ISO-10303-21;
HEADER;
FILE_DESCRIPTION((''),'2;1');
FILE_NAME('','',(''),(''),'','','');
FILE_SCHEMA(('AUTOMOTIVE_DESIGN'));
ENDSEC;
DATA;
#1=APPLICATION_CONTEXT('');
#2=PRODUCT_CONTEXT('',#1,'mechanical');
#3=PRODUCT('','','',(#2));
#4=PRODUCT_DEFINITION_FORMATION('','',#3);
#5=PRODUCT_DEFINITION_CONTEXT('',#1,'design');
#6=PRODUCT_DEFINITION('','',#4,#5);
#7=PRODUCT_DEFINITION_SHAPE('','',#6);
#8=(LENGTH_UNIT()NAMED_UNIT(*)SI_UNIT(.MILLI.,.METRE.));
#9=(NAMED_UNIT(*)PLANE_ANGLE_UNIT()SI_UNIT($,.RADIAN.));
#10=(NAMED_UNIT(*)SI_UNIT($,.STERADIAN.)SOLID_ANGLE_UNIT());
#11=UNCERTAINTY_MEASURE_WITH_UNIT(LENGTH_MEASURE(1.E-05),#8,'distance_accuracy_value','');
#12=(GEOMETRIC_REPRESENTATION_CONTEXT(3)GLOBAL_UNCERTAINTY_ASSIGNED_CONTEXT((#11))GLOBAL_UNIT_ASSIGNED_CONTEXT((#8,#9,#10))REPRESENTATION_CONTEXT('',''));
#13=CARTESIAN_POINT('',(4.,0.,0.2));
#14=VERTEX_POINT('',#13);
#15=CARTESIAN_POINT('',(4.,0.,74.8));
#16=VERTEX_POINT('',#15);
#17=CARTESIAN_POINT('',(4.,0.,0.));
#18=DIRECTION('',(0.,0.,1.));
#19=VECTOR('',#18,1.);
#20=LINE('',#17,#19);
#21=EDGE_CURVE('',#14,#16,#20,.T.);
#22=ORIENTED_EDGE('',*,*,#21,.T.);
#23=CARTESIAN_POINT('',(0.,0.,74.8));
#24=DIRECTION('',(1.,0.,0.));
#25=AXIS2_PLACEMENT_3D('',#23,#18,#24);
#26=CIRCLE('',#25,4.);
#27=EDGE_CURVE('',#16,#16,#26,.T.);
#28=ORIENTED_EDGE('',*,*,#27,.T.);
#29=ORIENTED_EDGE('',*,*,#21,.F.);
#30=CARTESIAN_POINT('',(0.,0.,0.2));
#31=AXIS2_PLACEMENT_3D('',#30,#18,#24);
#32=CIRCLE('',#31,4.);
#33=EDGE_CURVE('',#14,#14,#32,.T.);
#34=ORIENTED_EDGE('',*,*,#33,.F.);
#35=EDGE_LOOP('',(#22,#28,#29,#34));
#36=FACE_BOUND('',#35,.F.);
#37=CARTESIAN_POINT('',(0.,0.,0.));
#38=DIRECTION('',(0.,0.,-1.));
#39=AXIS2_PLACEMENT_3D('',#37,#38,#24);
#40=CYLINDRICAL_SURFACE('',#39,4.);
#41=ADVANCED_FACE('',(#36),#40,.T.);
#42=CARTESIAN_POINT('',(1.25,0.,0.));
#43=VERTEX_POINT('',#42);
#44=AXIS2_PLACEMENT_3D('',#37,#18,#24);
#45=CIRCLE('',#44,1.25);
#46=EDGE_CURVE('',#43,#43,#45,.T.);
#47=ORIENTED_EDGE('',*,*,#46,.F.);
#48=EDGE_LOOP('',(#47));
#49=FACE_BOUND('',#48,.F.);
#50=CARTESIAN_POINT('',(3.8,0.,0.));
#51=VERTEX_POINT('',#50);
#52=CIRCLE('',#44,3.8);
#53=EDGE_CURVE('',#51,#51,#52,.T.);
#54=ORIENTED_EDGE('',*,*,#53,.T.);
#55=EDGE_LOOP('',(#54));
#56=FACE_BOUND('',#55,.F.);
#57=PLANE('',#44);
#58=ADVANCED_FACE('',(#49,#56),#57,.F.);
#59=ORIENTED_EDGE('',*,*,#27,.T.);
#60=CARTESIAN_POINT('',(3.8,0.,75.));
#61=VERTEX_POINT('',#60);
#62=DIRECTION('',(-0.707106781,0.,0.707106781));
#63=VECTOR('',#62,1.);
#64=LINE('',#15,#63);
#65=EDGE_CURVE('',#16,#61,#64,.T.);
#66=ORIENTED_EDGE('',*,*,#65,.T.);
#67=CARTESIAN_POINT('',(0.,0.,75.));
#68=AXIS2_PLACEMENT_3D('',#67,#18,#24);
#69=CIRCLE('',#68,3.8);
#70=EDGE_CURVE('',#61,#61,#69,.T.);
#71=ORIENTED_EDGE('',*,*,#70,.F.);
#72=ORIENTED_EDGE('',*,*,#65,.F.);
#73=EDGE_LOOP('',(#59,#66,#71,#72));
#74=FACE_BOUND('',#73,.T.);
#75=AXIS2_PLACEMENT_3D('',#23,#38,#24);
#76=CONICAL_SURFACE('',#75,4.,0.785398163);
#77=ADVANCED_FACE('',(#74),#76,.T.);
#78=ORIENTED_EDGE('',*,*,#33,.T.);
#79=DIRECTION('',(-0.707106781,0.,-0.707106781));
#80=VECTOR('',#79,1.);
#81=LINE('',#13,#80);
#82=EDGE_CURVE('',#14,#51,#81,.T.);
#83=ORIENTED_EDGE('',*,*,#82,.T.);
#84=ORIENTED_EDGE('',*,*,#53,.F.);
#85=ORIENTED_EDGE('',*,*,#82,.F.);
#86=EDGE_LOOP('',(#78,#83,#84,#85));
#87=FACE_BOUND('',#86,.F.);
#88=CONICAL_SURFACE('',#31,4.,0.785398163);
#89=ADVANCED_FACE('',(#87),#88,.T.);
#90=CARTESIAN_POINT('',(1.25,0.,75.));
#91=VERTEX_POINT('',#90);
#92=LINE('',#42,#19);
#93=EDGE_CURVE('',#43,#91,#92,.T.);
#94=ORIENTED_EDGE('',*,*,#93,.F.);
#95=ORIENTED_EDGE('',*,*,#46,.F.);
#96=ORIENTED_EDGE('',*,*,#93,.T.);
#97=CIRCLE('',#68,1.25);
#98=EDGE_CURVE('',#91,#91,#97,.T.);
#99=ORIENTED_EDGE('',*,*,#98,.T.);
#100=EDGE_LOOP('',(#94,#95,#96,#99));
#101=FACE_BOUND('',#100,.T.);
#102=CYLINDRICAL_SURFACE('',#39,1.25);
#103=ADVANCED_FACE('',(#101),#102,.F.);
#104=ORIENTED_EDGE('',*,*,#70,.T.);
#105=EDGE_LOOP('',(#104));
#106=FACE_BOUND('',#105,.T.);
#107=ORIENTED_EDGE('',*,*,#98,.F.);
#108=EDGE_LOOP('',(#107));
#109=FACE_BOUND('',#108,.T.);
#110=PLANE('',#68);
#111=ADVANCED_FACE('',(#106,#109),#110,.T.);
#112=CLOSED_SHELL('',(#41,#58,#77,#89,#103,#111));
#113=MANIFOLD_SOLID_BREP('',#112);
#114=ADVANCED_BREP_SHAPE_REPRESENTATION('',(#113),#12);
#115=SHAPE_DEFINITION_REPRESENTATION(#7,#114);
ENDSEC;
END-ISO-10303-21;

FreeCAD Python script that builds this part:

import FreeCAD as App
import Part
import Sketcher
from FreeCAD import Vector


def edges_at(feature, points):
    """Names of the edges that pass closest to the given points."""
    edges = feature.Shape.Edges
    near = lambda p: min(range(len(edges)), key=lambda i: edges[i].distToShape(Part.Vertex(*p))[0])
    return sorted({f"Edge{near(p) + 1}" for p in points})

doc = App.newDocument("Part")
params = doc.addObject("Spreadsheet::Sheet", "Params")
for row, (alias, value) in enumerate([
    ("sketch1_diameter", "8 mm"),
    ("sketch1_diameter2", "2.5 mm"),
    ("pad1_length", "75 mm"),
    ("chamfer_size", "0.2 mm"),
], start=1):
    params.set(f"A{row}", alias)
    params.set(f"B{row}", "=" + value)
    params.setAlias(f"B{row}", alias)

body = doc.addObject("PartDesign::Body", "Body")

# Sketch on XY plane
sketch1 = body.newObject("Sketcher::SketchObject", "Sketch")
sketch1.AttachmentSupport = (doc.getObject("XY_Plane"), [""])
sketch1.MapMode = "FlatFace"
sketch1.addGeometry([
    Part.Circle(Vector(0, 0, 0), Vector(0, 0, 1), 4),
    Part.Circle(Vector(0, 0, 0), Vector(0, 0, 1), 1.2),
], False)
sketch1.addConstraint([
    Sketcher.Constraint("Coincident", 0, 3, -1, 1),
    Sketcher.Constraint("Coincident", 1, 3, -1, 1),
    Sketcher.Constraint("Diameter", 0, 8.0),
    Sketcher.Constraint("Diameter", 1, 2.5),
])
sketch1.setExpression("Constraints[2]", "Params.sketch1_diameter")
sketch1.setExpression("Constraints[3]", "Params.sketch1_diameter2")
pad1 = body.newObject("PartDesign::Pad", "Pad")
pad1.Profile = sketch1
pad1.setExpression("Length", "Params.pad1_length")
doc.recompute()

chamfer = body.newObject("PartDesign::Chamfer", "Chamfer")
chamfer.Base = (pad1, edges_at(pad1, [(-4, 0, 0), (-4, 0, 75)]))
chamfer.setExpression("Size", "Params.chamfer_size")

doc.recompute()
